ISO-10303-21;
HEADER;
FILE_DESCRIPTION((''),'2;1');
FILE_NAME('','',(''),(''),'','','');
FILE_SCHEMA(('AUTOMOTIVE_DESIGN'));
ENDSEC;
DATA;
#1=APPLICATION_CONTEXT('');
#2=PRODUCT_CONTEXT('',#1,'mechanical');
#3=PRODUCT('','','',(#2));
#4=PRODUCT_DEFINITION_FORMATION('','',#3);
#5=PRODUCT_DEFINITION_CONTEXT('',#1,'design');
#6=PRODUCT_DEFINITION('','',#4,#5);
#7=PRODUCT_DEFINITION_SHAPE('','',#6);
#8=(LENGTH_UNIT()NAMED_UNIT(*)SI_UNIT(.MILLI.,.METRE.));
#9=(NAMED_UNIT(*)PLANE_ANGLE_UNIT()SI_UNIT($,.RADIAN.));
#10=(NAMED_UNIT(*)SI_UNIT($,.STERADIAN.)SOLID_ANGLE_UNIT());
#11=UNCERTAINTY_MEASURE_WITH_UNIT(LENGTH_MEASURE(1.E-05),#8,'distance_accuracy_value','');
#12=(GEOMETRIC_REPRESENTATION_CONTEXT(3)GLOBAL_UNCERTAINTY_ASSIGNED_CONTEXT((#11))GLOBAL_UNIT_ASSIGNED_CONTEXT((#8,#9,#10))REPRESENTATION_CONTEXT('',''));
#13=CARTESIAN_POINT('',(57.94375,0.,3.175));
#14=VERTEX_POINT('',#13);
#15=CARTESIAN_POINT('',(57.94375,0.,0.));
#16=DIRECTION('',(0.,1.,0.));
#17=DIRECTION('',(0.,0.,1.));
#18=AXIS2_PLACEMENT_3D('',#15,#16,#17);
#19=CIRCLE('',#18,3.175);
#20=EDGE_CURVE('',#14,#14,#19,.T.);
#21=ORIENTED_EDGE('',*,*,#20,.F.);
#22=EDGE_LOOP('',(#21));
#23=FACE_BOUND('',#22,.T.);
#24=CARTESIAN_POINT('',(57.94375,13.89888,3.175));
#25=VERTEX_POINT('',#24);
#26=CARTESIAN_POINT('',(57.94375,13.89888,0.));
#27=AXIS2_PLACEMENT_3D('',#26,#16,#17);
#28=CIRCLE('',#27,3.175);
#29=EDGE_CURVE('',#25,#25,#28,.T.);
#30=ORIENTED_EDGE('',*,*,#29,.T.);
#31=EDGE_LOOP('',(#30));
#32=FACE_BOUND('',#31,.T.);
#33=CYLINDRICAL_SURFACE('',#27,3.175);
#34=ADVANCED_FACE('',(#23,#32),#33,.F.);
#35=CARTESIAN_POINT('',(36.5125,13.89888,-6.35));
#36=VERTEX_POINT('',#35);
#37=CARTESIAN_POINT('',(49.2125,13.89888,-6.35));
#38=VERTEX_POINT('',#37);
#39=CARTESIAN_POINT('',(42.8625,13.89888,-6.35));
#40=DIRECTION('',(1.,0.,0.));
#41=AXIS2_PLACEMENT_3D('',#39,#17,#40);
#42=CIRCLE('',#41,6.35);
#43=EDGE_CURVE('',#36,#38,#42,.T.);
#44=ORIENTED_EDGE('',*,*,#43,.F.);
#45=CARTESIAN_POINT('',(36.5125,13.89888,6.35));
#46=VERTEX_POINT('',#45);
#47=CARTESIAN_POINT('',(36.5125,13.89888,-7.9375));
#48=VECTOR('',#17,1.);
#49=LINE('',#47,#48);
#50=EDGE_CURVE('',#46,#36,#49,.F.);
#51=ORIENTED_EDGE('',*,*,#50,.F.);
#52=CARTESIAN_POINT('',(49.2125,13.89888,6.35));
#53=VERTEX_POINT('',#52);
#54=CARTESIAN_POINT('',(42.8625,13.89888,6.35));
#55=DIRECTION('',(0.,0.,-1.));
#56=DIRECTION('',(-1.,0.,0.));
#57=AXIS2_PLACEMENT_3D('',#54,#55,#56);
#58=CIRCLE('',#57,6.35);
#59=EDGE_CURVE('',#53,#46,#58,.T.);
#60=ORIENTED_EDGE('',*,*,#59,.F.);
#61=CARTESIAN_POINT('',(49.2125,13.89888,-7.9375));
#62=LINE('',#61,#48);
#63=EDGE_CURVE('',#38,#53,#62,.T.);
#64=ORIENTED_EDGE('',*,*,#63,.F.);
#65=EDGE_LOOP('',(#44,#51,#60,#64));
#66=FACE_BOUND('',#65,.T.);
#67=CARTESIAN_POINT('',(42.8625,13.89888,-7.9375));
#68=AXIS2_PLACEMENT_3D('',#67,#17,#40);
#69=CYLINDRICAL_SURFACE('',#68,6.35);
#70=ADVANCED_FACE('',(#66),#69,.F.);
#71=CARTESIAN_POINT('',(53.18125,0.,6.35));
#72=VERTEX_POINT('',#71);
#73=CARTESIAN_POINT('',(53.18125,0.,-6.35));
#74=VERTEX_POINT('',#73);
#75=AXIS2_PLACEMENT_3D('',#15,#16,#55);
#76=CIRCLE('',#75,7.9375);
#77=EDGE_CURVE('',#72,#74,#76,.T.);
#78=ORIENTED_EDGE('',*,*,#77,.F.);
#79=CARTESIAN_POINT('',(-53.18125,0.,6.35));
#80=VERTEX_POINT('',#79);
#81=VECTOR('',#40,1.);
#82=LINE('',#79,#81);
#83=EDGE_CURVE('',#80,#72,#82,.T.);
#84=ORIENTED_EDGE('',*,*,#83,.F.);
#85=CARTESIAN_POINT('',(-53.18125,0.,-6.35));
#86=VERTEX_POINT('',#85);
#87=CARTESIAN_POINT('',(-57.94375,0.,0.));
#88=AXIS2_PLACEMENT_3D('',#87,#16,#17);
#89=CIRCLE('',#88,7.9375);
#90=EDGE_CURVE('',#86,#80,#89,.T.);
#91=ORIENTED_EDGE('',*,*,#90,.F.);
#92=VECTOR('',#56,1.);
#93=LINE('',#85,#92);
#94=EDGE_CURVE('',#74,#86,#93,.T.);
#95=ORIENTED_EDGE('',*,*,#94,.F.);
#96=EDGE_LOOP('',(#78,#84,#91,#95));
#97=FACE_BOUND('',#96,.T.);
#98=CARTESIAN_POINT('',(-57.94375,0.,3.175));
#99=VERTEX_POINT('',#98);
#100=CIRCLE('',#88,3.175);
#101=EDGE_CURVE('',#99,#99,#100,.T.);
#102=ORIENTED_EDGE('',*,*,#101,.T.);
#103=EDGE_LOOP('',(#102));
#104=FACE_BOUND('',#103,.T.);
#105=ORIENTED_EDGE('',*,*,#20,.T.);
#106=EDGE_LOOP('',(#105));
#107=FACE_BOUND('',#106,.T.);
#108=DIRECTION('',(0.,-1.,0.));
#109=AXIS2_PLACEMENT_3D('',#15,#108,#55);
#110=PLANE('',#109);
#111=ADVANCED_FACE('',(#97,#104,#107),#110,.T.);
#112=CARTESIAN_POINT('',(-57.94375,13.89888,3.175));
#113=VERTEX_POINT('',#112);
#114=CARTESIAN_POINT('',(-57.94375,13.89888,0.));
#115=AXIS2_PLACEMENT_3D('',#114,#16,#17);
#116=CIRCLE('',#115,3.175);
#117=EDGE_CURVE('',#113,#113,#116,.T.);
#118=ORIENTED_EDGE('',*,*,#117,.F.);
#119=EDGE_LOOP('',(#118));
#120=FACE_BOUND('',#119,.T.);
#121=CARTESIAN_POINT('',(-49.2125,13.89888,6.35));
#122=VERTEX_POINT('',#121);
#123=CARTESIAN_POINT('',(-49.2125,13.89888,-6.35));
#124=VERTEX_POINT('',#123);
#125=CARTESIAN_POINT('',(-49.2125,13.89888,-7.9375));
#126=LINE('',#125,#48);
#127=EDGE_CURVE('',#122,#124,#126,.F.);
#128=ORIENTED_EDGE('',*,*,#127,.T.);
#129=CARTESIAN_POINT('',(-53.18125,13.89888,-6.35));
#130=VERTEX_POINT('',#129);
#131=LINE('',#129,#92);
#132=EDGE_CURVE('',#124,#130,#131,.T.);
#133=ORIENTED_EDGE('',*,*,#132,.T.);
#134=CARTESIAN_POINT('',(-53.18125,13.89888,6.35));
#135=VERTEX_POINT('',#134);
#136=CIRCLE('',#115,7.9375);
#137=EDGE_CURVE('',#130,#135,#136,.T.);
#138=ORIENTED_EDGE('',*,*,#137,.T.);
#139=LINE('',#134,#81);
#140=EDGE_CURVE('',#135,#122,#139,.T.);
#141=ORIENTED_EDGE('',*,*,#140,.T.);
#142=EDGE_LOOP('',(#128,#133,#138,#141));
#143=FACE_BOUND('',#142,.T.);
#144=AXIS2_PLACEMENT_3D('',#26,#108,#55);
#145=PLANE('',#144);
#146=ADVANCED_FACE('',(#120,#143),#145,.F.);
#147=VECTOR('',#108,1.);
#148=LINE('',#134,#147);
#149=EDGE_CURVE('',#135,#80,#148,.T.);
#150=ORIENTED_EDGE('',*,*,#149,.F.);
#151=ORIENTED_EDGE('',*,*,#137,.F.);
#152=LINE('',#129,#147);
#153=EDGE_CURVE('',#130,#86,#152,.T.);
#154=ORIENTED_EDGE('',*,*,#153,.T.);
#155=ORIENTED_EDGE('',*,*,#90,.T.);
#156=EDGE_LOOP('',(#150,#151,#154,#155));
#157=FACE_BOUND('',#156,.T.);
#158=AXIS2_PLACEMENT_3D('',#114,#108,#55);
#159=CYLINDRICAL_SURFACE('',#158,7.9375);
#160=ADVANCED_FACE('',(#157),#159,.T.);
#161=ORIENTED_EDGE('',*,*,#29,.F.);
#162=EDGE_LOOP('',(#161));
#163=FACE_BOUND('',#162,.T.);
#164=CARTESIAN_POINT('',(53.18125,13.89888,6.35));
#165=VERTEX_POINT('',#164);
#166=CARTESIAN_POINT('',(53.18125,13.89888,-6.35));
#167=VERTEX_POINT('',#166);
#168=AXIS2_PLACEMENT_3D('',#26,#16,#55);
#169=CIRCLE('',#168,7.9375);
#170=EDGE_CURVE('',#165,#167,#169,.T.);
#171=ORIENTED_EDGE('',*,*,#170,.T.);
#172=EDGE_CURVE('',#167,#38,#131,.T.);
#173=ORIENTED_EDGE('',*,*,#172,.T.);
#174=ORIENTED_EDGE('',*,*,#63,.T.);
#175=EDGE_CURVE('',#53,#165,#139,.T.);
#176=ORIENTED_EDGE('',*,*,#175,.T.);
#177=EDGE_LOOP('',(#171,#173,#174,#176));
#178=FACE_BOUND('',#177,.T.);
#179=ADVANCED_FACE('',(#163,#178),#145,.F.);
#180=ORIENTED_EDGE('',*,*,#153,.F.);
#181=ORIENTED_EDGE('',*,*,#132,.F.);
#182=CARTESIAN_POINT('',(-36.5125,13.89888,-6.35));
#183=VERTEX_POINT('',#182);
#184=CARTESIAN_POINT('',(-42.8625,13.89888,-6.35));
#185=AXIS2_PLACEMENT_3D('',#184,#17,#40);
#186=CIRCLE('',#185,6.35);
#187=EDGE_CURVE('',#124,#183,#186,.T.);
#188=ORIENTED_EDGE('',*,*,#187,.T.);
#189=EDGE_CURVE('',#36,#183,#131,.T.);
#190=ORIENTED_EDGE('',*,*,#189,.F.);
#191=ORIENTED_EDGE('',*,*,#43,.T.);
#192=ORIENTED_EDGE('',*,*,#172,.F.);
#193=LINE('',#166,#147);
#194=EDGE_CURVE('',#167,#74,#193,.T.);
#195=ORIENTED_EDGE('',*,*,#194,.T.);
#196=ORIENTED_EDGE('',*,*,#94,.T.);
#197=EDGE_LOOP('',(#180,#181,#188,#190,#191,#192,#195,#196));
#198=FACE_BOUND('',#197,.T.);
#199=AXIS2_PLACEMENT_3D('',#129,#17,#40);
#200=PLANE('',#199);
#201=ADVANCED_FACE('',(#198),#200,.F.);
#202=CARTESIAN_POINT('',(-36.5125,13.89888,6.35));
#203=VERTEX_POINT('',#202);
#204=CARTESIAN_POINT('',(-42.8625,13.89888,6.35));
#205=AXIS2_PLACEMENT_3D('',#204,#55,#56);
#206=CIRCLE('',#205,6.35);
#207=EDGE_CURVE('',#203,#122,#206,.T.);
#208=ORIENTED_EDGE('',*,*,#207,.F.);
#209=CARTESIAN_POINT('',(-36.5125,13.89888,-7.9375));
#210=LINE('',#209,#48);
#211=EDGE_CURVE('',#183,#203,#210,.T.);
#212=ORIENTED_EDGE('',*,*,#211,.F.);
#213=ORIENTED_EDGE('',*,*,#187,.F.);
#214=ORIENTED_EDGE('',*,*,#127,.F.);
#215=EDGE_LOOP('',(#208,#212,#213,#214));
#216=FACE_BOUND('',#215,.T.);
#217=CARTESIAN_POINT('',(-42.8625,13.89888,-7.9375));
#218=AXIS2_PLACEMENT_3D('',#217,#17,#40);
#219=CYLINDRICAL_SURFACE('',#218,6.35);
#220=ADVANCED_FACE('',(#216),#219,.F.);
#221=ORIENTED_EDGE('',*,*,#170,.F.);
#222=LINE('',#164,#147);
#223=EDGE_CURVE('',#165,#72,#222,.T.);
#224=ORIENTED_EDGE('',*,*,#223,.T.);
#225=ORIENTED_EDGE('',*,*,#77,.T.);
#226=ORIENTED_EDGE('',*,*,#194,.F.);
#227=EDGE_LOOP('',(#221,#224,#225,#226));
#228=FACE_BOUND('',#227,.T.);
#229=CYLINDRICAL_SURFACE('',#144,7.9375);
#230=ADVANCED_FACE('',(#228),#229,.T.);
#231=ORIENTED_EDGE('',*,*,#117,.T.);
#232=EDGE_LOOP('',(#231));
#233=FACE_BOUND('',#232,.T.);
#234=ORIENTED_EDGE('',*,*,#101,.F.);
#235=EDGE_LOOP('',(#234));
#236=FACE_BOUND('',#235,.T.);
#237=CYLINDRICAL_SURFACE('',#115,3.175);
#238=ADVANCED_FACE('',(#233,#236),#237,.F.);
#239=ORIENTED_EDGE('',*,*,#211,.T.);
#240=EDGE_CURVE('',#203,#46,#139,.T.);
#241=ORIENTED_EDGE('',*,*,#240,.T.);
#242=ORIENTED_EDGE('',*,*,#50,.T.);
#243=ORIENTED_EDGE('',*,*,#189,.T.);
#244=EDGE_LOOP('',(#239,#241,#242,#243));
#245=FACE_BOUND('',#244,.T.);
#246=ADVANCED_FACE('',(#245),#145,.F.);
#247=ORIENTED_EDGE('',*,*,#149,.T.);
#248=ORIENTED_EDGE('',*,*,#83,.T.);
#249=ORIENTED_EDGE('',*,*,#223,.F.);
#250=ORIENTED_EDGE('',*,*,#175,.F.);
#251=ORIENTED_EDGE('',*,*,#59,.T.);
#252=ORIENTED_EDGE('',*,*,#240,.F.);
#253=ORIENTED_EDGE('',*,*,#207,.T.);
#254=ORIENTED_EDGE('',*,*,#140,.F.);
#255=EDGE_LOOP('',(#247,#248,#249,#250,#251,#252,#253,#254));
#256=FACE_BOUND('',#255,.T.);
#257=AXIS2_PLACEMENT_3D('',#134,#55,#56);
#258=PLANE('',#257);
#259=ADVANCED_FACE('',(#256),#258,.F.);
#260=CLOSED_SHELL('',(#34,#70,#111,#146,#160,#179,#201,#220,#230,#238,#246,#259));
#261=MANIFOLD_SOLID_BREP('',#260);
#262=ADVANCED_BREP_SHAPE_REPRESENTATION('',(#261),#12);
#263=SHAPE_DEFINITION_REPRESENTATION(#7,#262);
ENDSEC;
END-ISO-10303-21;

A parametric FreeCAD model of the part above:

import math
import FreeCAD as App
import Part
import Sketcher
from FreeCAD import Vector
Q = App.Units.Quantity

doc = App.newDocument("Part")
body = doc.addObject("PartDesign::Body", "Body")

# Sketch on XZ plane
sketch1 = doc.addObject("Sketcher::SketchObject", "Sketch")
body.addObject(sketch1)
sketch1.AttachmentSupport = (doc.XZ_Plane, [""])
sketch1.MapMode = "FlatFace"
sketch1.addGeometry(Part.LineSegment(Vector(53, -6, 0), Vector(-53, -6, 0)), False)
sketch1.addGeometry(Part.ArcOfCircle(Part.Circle(Vector(-58, 0, 0), Vector(0, 0, 1), 8), math.radians(53), math.radians(307)), False)
sketch1.addGeometry(Part.LineSegment(Vector(-53, 6, 0), Vector(53, 6, 0)), False)
sketch1.addGeometry(Part.ArcOfCircle(Part.Circle(Vector(58, 0, 0), Vector(0, 0, 1), 8), math.radians(-127), math.radians(127)), False)
sketch1.addConstraint(Sketcher.Constraint("Coincident", 0, 2, 1, 2))
sketch1.addConstraint(Sketcher.Constraint("Coincident", 1, 1, 2, 1))
sketch1.addConstraint(Sketcher.Constraint("Coincident", 2, 2, 3, 2))
sketch1.addConstraint(Sketcher.Constraint("Coincident", 3, 1, 0, 1))
sketch1.addConstraint(Sketcher.Constraint("Horizontal", 0))
sketch1.addConstraint(Sketcher.Constraint("Horizontal", 2))
sketch1.addConstraint(Sketcher.Constraint("Equal", 1, 3))
sketch1.addConstraint(Sketcher.Constraint("Symmetric", 1, 3, 3, 3, -1, 1))
sketch1.addConstraint(Sketcher.Constraint("Symmetric", 0, 2, 1, 1, -1))
sketch1.addConstraint(Sketcher.Constraint("Radius", 1, Q("0.3125 in")))
sketch1.addConstraint(Sketcher.Constraint("DistanceY", 0, 2, 1, 1, Q("0.5 in")))
sketch1.addConstraint(Sketcher.Constraint("DistanceX", 0, 2, 0, 1, Q("4.1875 in")))
pad1 = doc.addObject("PartDesign::Pad", "Pad")
body.addObject(pad1)
pad1.Profile = sketch1
pad1.Length = Q("0.5472 in")
pad1.Reversed = True

# Sketch on XY plane
sketch2 = doc.addObject("Sketcher::SketchObject", "Sketch001")
body.addObject(sketch2)
sketch2.AttachmentSupport = (doc.XY_Plane, [""])
sketch2.MapMode = "FlatFace"
sketch2.AttachmentOffset = App.Placement(Vector(0, 0, 0.25 * 25.4), App.Rotation())
sketch2.addGeometry(Part.LineSegment(Vector(-37, 14, 0), Vector(-49, 14, 0)), False)
sketch2.addGeometry(Part.ArcOfCircle(Part.Circle(Vector(-43, 14, 0), Vector(0, 0, 1), 6), math.radians(180), math.radians(360)), False)
sketch2.addGeometry(Part.LineSegment(Vector(49, 14, 0), Vector(37, 14, 0)), False)
sketch2.addGeometry(Part.ArcOfCircle(Part.Circle(Vector(43, 14, 0), Vector(0, 0, 1), 6), math.radians(180), math.radians(360)), False)
sketch2.addConstraint(Sketcher.Constraint("Coincident", 0, 1, 1, 2))
sketch2.addConstraint(Sketcher.Constraint("Coincident", 1, 1, 0, 2))
sketch2.addConstraint(Sketcher.Constraint("Coincident", 2, 1, 3, 2))
sketch2.addConstraint(Sketcher.Constraint("Coincident", 3, 1, 2, 2))
sketch2.addConstraint(Sketcher.Constraint("Horizontal", 0))
sketch2.addConstraint(Sketcher.Constraint("Horizontal", 2))
sketch2.addConstraint(Sketcher.Constraint("Equal", 1, 3))
sketch2.addConstraint(Sketcher.Constraint("Symmetric", 1, 3, 3, 3, -2))
sketch2.addConstraint(Sketcher.Constraint("Horizontal", 3, 3, 0, 1))
sketch2.addConstraint(Sketcher.Constraint("Horizontal", 1, 1, 2, 1))
sketch2.addConstraint(Sketcher.Constraint("Radius", 1, Q("0.25 in")))
sketch2.addConstraint(Sketcher.Constraint("DistanceX", 1, 3, -1, 1, Q("1.6875 in")))
sketch2.addConstraint(Sketcher.Constraint("DistanceY", -1, 1, 1, 3, Q("0.5472 in")))
pocket1 = doc.addObject("PartDesign::Pocket", "Pocket")
body.addObject(pocket1)
pocket1.Profile = sketch2
pocket1.Type = "ThroughAll"
pocket1.Midplane = True

# Sketch on XZ plane
sketch3 = doc.addObject("Sketcher::SketchObject", "Sketch002")
body.addObject(sketch3)
sketch3.AttachmentSupport = (doc.XZ_Plane, [""])
sketch3.MapMode = "FlatFace"
sketch3.AttachmentOffset = App.Placement(Vector(0, 0, -0.5472 * 25.4), App.Rotation())
sketch3.addGeometry(Part.Circle(Vector(-57.9, 0, 0), Vector(0, 0, 1), 3.2), False)
sketch3.addGeometry(Part.Circle(Vector(57.9, 0, 0), Vector(0, 0, 1), 3.2), False)
sketch3.addConstraint(Sketcher.Constraint("Equal", 0, 1))
sketch3.addConstraint(Sketcher.Constraint("Symmetric", 0, 3, 1, 3, -1, 1))
sketch3.addConstraint(Sketcher.Constraint("PointOnObject", 0, 3, -1))
sketch3.addConstraint(Sketcher.Constraint("Diameter", 0, Q("0.25 in")))
sketch3.addConstraint(Sketcher.Constraint("DistanceX", 0, 3, -1, 1, Q("2.28125 in")))
doc.recompute()
hole = doc.addObject("PartDesign::Hole", "Hole")
body.addObject(hole)
hole.Profile = sketch3
hole.ThreadType = "None"
hole.Diameter = Q("0.25 in")
hole.DepthType = "ThroughAll"
hole.Reversed = True

doc.recompute()
